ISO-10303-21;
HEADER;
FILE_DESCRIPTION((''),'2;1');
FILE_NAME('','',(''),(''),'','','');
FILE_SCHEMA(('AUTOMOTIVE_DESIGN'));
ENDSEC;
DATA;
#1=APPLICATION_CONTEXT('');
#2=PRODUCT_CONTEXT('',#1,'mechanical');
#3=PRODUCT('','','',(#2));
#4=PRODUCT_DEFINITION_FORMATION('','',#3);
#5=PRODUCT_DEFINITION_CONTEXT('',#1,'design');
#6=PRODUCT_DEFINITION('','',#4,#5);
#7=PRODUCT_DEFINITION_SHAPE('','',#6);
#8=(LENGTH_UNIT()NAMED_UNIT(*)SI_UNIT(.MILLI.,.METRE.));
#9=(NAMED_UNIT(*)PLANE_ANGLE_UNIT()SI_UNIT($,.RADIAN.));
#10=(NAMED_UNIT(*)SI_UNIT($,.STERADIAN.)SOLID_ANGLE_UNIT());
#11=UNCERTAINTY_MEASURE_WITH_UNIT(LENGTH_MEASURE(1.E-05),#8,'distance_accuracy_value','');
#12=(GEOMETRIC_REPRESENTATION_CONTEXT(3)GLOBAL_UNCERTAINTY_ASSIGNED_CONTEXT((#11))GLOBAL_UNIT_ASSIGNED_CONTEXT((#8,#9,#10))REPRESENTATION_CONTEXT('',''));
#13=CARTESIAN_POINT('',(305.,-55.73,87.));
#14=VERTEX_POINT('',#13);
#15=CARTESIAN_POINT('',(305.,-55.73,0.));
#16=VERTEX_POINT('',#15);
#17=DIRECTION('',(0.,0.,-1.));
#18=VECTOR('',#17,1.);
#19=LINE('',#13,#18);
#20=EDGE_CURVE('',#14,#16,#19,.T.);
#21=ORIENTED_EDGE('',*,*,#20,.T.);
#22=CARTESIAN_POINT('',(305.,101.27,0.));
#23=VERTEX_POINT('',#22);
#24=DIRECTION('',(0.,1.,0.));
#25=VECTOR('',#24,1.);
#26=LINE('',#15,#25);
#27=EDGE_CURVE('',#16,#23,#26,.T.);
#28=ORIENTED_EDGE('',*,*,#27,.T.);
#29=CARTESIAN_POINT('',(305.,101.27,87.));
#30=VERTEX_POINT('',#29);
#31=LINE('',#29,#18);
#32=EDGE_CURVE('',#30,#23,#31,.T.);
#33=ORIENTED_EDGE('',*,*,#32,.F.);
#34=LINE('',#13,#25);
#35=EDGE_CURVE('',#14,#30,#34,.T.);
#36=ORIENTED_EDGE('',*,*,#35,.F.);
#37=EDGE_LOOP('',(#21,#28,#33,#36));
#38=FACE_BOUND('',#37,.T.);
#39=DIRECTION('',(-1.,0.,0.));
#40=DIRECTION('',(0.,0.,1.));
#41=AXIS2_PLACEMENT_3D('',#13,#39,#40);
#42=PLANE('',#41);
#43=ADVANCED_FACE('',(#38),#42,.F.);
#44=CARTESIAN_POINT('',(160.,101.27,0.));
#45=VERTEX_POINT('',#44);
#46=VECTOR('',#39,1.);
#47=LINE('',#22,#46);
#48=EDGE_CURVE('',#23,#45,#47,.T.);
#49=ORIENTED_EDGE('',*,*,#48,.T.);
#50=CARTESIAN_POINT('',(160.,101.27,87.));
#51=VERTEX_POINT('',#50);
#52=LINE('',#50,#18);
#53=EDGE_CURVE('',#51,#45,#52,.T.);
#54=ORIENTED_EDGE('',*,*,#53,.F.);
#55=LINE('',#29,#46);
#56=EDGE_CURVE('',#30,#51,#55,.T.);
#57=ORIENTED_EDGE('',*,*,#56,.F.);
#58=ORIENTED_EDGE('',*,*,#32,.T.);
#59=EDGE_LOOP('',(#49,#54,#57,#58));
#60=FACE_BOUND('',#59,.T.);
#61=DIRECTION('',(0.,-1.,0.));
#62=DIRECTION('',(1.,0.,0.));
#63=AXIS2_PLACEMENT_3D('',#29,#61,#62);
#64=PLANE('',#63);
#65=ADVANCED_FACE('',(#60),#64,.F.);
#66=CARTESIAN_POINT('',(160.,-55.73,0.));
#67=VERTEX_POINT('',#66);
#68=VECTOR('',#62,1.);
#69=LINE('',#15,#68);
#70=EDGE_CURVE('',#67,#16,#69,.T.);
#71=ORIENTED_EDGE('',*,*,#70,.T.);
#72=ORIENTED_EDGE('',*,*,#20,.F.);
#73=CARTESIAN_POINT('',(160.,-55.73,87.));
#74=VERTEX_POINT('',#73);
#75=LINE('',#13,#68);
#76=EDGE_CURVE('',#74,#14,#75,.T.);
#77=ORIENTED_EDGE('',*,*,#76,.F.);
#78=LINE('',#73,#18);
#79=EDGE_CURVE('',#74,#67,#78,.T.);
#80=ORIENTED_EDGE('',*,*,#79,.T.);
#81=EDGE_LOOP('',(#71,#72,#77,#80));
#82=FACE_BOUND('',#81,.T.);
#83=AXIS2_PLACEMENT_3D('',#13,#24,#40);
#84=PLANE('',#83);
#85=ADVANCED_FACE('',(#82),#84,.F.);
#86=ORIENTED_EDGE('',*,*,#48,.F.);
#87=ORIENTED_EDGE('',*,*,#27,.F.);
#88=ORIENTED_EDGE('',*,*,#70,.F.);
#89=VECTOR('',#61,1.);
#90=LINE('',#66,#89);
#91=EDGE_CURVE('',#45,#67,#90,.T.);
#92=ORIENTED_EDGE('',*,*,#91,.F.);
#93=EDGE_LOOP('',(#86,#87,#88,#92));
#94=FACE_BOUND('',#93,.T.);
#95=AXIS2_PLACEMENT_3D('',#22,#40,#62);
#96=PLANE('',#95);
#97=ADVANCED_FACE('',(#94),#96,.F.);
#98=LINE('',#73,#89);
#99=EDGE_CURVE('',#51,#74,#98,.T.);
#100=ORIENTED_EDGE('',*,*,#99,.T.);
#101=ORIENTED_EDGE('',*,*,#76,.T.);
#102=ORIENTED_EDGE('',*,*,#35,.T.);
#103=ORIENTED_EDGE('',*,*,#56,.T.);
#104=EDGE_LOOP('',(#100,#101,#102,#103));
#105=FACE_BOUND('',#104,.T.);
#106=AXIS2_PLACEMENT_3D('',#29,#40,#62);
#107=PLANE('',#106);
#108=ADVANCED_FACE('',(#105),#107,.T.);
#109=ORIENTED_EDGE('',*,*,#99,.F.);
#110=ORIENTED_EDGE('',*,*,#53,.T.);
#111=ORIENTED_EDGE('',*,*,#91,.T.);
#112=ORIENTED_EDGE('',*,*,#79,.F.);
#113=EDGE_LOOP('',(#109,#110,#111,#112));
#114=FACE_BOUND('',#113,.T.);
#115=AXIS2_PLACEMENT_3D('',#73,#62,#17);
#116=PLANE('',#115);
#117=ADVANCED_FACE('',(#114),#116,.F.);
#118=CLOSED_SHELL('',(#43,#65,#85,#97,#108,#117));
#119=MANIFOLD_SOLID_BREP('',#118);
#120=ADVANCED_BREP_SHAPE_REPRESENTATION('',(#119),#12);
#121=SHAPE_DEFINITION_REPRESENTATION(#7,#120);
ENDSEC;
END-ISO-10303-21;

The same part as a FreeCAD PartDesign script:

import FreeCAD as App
import Part
import Sketcher

V = App.Vector


def add_polygon(sketch, points):
    """Adds a closed chain of lines whose ends are joined by coincident constraints."""
    first, n = sketch.GeometryCount, len(points)
    for a, b in zip(points, points[1:] + points[:1]):
        sketch.addGeometry(Part.LineSegment(App.Vector(*a, 0), App.Vector(*b, 0)), False)
    for i in range(n):
        sketch.addConstraint(Sketcher.Constraint("Coincident", first + i, 2, first + (i + 1) % n, 1))

doc = App.newDocument("Part")
body = doc.addObject("PartDesign::Body", "Body")

# Sketch on XY plane
sketch1 = body.newObject("Sketcher::SketchObject", "Sketch")
sketch1.AttachmentSupport = (doc.getObject("XY_Plane"), [""])
sketch1.MapMode = "FlatFace"
add_polygon(sketch1, [(160, 101), (160, -56), (305, -56), (305, 101)])  # lines 0-3
sketch1.addConstraint([
    Sketcher.Constraint("Vertical", 0),
    Sketcher.Constraint("Horizontal", 1),
    Sketcher.Constraint("Vertical", 2),
    Sketcher.Constraint("Horizontal", 3),
    Sketcher.Constraint("DistanceX", 1, 1, 1, 2, 145.0),
    Sketcher.Constraint("DistanceY", 0, 2, 0, 1, 157.0),
    Sketcher.Constraint("DistanceX", -1, 1, 0, 2, 160.0),
    Sketcher.Constraint("DistanceY", 0, 2, -1, 1, 55.73),
])
pad1 = body.newObject("PartDesign::Pad", "Pad")
pad1.Profile = sketch1
pad1.Length = 87

doc.recompute()
